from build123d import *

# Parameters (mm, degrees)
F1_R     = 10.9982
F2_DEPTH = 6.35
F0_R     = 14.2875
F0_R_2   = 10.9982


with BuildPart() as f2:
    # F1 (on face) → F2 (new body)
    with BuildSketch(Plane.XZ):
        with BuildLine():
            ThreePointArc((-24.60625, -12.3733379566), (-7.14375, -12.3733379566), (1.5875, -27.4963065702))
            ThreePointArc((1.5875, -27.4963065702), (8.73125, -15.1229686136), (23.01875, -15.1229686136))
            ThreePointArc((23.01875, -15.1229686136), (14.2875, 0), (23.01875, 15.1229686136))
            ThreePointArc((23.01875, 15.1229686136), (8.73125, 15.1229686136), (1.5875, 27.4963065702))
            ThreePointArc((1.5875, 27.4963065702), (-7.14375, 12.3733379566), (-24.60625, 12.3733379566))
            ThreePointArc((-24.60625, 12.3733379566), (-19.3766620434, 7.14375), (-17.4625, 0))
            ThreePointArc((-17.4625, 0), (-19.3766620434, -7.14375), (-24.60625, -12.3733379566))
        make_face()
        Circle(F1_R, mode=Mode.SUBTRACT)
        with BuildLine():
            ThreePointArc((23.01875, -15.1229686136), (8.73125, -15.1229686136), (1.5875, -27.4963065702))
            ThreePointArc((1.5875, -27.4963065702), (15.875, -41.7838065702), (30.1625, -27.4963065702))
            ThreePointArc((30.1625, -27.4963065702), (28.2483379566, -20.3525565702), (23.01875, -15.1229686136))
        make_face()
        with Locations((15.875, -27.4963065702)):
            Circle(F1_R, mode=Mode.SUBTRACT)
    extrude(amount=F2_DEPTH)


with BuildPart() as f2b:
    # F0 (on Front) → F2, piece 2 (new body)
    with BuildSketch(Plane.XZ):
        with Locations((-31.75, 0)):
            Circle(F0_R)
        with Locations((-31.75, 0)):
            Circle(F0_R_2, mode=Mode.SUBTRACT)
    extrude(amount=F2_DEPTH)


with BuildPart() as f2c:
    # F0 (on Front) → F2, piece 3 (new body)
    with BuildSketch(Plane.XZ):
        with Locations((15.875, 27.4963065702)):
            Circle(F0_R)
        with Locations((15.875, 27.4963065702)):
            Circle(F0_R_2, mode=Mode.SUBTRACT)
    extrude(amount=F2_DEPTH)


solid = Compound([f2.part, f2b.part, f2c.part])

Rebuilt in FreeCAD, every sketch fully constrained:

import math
import FreeCAD as App
import Part
import Sketcher
from FreeCAD import Vector
Q = App.Units.Quantity

doc = App.newDocument("Part")
body = doc.addObject("PartDesign::Body", "Body")

# Sketch on XZ plane
sketch1 = body.newObject("Sketcher::SketchObject", "Sketch")
sketch1.AttachmentSupport = (doc.getObject("XZ_Plane"), [""])
sketch1.MapMode = "FlatFace"
sketch1.addGeometry(Part.ArcOfCircle(Part.Circle(Vector(-16, -27, 0), Vector(0, 0, 1), 17), math.radians(0), math.radians(120)), False)
sketch1.addGeometry(Part.ArcOfCircle(Part.Circle(Vector(16, -27, 0), Vector(0, 0, 1), 14), math.radians(180), math.radians(360)), False)
sketch1.addGeometry(Part.ArcOfCircle(Part.Circle(Vector(16, -27, 0), Vector(0, 0, 1), 14), math.radians(0), math.radians(60)), False)
sketch1.addGeometry(Part.ArcOfCircle(Part.Circle(Vector(32, 0, 0), Vector(0, 0, 1), 17), math.radians(120), math.radians(240)), False)
sketch1.addGeometry(Part.ArcOfCircle(Part.Circle(Vector(16, 27, 0), Vector(0, 0, 1), 14), math.radians(180), math.radians(300)), False)
sketch1.addGeometry(Part.ArcOfCircle(Part.Circle(Vector(-16, 27, 0), Vector(0, 0, 1), 17), math.radians(-120), math.radians(0)), False)
sketch1.addGeometry(Part.ArcOfCircle(Part.Circle(Vector(-32, 0, 0), Vector(0, 0, 1), 14), math.radians(0), math.radians(60)), False)
sketch1.addGeometry(Part.ArcOfCircle(Part.Circle(Vector(-32, 0, 0), Vector(0, 0, 1), 14), math.radians(-60), math.radians(0)), False)
sketch1.addGeometry(Part.Circle(Vector(16, -27, 0), Vector(0, 0, 1), 11), False)
sketch1.addGeometry(Part.Circle(Vector(0, 0, 0), Vector(0, 0, 1), 11), False)
sketch1.addConstraint(Sketcher.Constraint("Tangent", 0, 1, 1, 1))
sketch1.addConstraint(Sketcher.Constraint("Tangent", 1, 2, 2, 1))
sketch1.addConstraint(Sketcher.Constraint("Tangent", 2, 2, 3, 2))
sketch1.addConstraint(Sketcher.Constraint("Tangent", 3, 1, 4, 2))
sketch1.addConstraint(Sketcher.Constraint("Tangent", 4, 1, 5, 2))
sketch1.addConstraint(Sketcher.Constraint("Tangent", 5, 1, 6, 2))
sketch1.addConstraint(Sketcher.Constraint("Tangent", 6, 1, 7, 2))
sketch1.addConstraint(Sketcher.Constraint("Tangent", 7, 1, 0, 2))
sketch1.addConstraint(Sketcher.Constraint("Coincident", 9, 3, -1, 1))
sketch1.addConstraint(Sketcher.Constraint("Coincident", 8, 3, 1, 3))
sketch1.addConstraint(Sketcher.Constraint("Equal", 1, 2))
sketch1.addConstraint(Sketcher.Constraint("Equal", 0, 3))
sketch1.addConstraint(Sketcher.Constraint("Equal", 2, 4))
sketch1.addConstraint(Sketcher.Constraint("Equal", 3, 5))
sketch1.addConstraint(Sketcher.Constraint("Equal", 4, 6))
sketch1.addConstraint(Sketcher.Constraint("Equal", 6, 7))
sketch1.addConstraint(Sketcher.Constraint("Equal", 8, 9))
sketch1.addConstraint(Sketcher.Constraint("Symmetric", 0, 3, 4, 3, -1, 1))
sketch1.addConstraint(Sketcher.Constraint("Symmetric", 0, 3, 1, 3, -2))
sketch1.addConstraint(Sketcher.Constraint("PointOnObject", 6, 3, -1))
sketch1.addConstraint(Sketcher.Constraint("PointOnObject", 6, 1, -1))
sketch1.addConstraint(Sketcher.Constraint("Horizontal", 0, 1, 1, 2))
sketch1.addConstraint(Sketcher.Constraint("Diameter", 8, Q("0.866 in")))
sketch1.addConstraint(Sketcher.Constraint("Radius", 0, Q("0.6875 in")))
sketch1.addConstraint(Sketcher.Constraint("Radius", 1, Q("0.5625 in")))
sketch1.addConstraint(Sketcher.Constraint("DistanceX", -1, 1, 3, 3, Q("1.25 in")))
pad1 = body.newObject("PartDesign::Pad", "Pad")
pad1.Profile = sketch1
pad1.Length = Q("0.25 in")
body2 = doc.addObject("PartDesign::Body", "Body001")

# Sketch on XZ plane
sketch2 = body2.newObject("Sketcher::SketchObject", "Sketch001")
sketch2.AttachmentSupport = (doc.getObject("XZ_Plane001"), [""])
sketch2.MapMode = "FlatFace"
sketch2.addGeometry(Part.Circle(Vector(-32, 0, 0), Vector(0, 0, 1), 14), False)
sketch2.addGeometry(Part.Circle(Vector(-32, 0, 0), Vector(0, 0, 1), 11), False)
sketch2.addConstraint(Sketcher.Constraint("Coincident", 1, 3, 0, 3))
sketch2.addConstraint(Sketcher.Constraint("PointOnObject", 0, 3, -1))
sketch2.addConstraint(Sketcher.Constraint("Diameter", 0, Q("1.125 in")))
sketch2.addConstraint(Sketcher.Constraint("Diameter", 1, Q("0.866 in")))
sketch2.addConstraint(Sketcher.Constraint("DistanceX", 0, 3, -1, 1, Q("1.25 in")))
pad2 = body2.newObject("PartDesign::Pad", "Pad001")
pad2.Profile = sketch2
pad2.Length = Q("0.25 in")
body3 = doc.addObject("PartDesign::Body", "Body002")

# Sketch on XZ plane
sketch3 = body3.newObject("Sketcher::SketchObject", "Sketch002")
sketch3.AttachmentSupport = (doc.getObject("XZ_Plane002"), [""])
sketch3.MapMode = "FlatFace"
sketch3.addGeometry(Part.Circle(Vector(16, 27, 0), Vector(0, 0, 1), 14), False)
sketch3.addGeometry(Part.Circle(Vector(16, 27, 0), Vector(0, 0, 1), 11), False)
sketch3.addConstraint(Sketcher.Constraint("Coincident", 1, 3, 0, 3))
sketch3.addConstraint(Sketcher.Constraint("Diameter", 0, Q("1.125 in")))
sketch3.addConstraint(Sketcher.Constraint("Diameter", 1, Q("0.866 in")))
sketch3.addConstraint(Sketcher.Constraint("DistanceX", -1, 1, 0, 3, Q("0.625 in")))
sketch3.addConstraint(Sketcher.Constraint("DistanceY", -1, 1, 0, 3, 27.496307))
pad3 = body3.newObject("PartDesign::Pad", "Pad002")
pad3.Profile = sketch3
pad3.Length = Q("0.25 in")

doc.recompute()
